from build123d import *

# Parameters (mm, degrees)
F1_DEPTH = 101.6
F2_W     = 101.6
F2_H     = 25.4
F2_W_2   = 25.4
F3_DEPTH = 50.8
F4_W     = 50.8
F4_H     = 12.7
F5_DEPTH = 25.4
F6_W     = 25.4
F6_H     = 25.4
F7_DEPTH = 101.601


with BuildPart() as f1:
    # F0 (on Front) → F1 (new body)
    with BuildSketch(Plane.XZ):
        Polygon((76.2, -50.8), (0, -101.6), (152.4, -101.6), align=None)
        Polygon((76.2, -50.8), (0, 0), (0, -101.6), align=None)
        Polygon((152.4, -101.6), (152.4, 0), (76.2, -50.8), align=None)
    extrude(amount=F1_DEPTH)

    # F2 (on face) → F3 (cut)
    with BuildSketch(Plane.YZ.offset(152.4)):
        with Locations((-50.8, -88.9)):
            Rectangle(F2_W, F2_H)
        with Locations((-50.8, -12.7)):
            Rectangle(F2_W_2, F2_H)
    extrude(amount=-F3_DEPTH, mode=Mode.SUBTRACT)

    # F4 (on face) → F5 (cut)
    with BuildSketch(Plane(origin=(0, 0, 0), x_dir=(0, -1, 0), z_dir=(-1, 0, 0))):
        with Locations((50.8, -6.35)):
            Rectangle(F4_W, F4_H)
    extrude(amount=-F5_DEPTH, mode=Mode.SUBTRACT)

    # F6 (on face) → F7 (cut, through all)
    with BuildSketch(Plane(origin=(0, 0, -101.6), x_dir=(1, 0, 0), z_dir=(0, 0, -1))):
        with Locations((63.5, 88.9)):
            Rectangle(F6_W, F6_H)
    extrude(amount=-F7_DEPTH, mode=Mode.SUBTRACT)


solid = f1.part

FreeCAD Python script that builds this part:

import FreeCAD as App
import Part
import Sketcher

V = App.Vector
Q = App.Units.Quantity


def add_polygon(sketch, points):
    """Adds a closed chain of lines whose ends are joined by coincident constraints."""
    first, n = sketch.GeometryCount, len(points)
    for a, b in zip(points, points[1:] + points[:1]):
        sketch.addGeometry(Part.LineSegment(App.Vector(*a, 0), App.Vector(*b, 0)), False)
    for i in range(n):
        sketch.addConstraint(Sketcher.Constraint("Coincident", first + i, 2, first + (i + 1) % n, 1))

doc = App.newDocument("Part")
body = doc.addObject("PartDesign::Body", "Body")

sketch1 = body.newObject("Sketcher::SketchObject", "Sketch")
sketch1.AttachmentSupport = (doc.getObject("XZ_Plane"), [""])
sketch1.MapMode = "FlatFace"
add_polygon(sketch1, [(0, -102), (152, -102), (152, 0), (76, -51), (0, 0)])
sketch1.addConstraint(Sketcher.Constraint("Horizontal", 0))
sketch1.addConstraint(Sketcher.Constraint("Vertical", 1))
sketch1.addConstraint(Sketcher.Constraint("Vertical", 4))
sketch1.addConstraint(Sketcher.Constraint("Coincident", 3, 2, -1, 1))
sketch1.addConstraint(Sketcher.Constraint("PointOnObject", 1, 2, -1))
sketch1.addConstraint(Sketcher.Constraint("Equal", 2, 3))
sketch1.addConstraint(Sketcher.Constraint("DistanceX", 0, 1, 0, 2, Q("6 in")))
sketch1.addConstraint(Sketcher.Constraint("DistanceY", 1, 1, 1, 2, Q("4 in")))
sketch1.addConstraint(Sketcher.Constraint("DistanceY", 2, 2, -1, 1, Q("2 in")))
pad1 = body.newObject("PartDesign::Pad", "Pad")
pad1.Profile = sketch1
pad1.Length = Q("4 in")

sketch2 = body.newObject("Sketcher::SketchObject", "Sketch001")
sketch2.AttachmentSupport = (doc.getObject("YZ_Plane"), [""])
sketch2.MapMode = "FlatFace"
sketch2.AttachmentOffset = App.Placement(V(0, 0, 6 * 25.4), App.Rotation())
add_polygon(sketch2, [(-102, -76), (-102, -102), (0, -102), (0, -76)])
add_polygon(sketch2, [(-64, 0), (-64, -25), (-38, -25), (-38, 0)])
sketch2.addConstraint(Sketcher.Constraint("Vertical", 0))
sketch2.addConstraint(Sketcher.Constraint("Horizontal", 1))
sketch2.addConstraint(Sketcher.Constraint("Vertical", 2))
sketch2.addConstraint(Sketcher.Constraint("Horizontal", 3))
sketch2.addConstraint(Sketcher.Constraint("Vertical", 4))
sketch2.addConstraint(Sketcher.Constraint("Horizontal", 5))
sketch2.addConstraint(Sketcher.Constraint("Vertical", 6))
sketch2.addConstraint(Sketcher.Constraint("Horizontal", 7))
sketch2.addConstraint(Sketcher.Constraint("PointOnObject", 1, 2, -2))
sketch2.addConstraint(Sketcher.Constraint("PointOnObject", 6, 2, -1))
sketch2.addConstraint(Sketcher.Constraint("Equal", 7, 0))
sketch2.addConstraint(Sketcher.Constraint("Equal", 2, 4))
sketch2.addConstraint(Sketcher.Constraint("DistanceX", 1, 1, 1, 2, Q("4 in")))
sketch2.addConstraint(Sketcher.Constraint("DistanceX", 5, 1, 5, 2, Q("1 in")))
sketch2.addConstraint(Sketcher.Constraint("DistanceY", 0, 2, -1, 1, Q("4 in")))
sketch2.addConstraint(Sketcher.Constraint("DistanceX", 4, 2, -1, 1, Q("2.5 in")))
pocket1 = body.newObject("PartDesign::Pocket", "Pocket")
pocket1.Profile = sketch2
pocket1.Length = Q("2 in")

sketch3 = body.newObject("Sketcher::SketchObject", "Sketch002")
sketch3.AttachmentSupport = (doc.getObject("YZ_Plane"), [""])
sketch3.MapMode = "FlatFace"
add_polygon(sketch3, [(-25, 0), (-25, -13), (-76, -13), (-76, 0)])
sketch3.addConstraint(Sketcher.Constraint("Vertical", 0))
sketch3.addConstraint(Sketcher.Constraint("Horizontal", 1))
sketch3.addConstraint(Sketcher.Constraint("Vertical", 2))
sketch3.addConstraint(Sketcher.Constraint("Horizontal", 3))
sketch3.addConstraint(Sketcher.Constraint("PointOnObject", 2, 2, -1))
sketch3.addConstraint(Sketcher.Constraint("DistanceX", 1, 2, 1, 1, Q("2 in")))
sketch3.addConstraint(Sketcher.Constraint("DistanceY", 0, 2, 0, 1, Q("0.5 in")))
sketch3.addConstraint(Sketcher.Constraint("DistanceX", 0, 2, -1, 1, Q("1 in")))
pocket2 = body.newObject("PartDesign::Pocket", "Pocket001")
pocket2.Profile = sketch3
pocket2.Length = Q("1 in")
pocket2.Reversed = True

sketch4 = body.newObject("Sketcher::SketchObject", "Sketch003")
sketch4.AttachmentSupport = (doc.getObject("XY_Plane"), [""])
sketch4.MapMode = "FlatFace"
sketch4.AttachmentOffset = App.Placement(V(0, 0, -4 * 25.4), App.Rotation())
add_polygon(sketch4, [(51, -102), (51, -76), (76, -76), (76, -102)])
sketch4.addConstraint(Sketcher.Constraint("Vertical", 0))
sketch4.addConstraint(Sketcher.Constraint("Horizontal", 1))
sketch4.addConstraint(Sketcher.Constraint("Vertical", 2))
sketch4.addConstraint(Sketcher.Constraint("Horizontal", 3))
sketch4.addConstraint(Sketcher.Constraint("Equal", 3, 0))
sketch4.addConstraint(Sketcher.Constraint("DistanceX", 1, 1, 1, 2, Q("1 in")))
sketch4.addConstraint(Sketcher.Constraint("DistanceX", -1, 1, 0, 2, Q("2 in")))
sketch4.addConstraint(Sketcher.Constraint("DistanceY", 0, 2, -1, 1, Q("3 in")))
pocket3 = body.newObject("PartDesign::Pocket", "Pocket002")
pocket3.Profile = sketch4
pocket3.Type = "ThroughAll"
pocket3.Reversed = True

doc.recompute()
